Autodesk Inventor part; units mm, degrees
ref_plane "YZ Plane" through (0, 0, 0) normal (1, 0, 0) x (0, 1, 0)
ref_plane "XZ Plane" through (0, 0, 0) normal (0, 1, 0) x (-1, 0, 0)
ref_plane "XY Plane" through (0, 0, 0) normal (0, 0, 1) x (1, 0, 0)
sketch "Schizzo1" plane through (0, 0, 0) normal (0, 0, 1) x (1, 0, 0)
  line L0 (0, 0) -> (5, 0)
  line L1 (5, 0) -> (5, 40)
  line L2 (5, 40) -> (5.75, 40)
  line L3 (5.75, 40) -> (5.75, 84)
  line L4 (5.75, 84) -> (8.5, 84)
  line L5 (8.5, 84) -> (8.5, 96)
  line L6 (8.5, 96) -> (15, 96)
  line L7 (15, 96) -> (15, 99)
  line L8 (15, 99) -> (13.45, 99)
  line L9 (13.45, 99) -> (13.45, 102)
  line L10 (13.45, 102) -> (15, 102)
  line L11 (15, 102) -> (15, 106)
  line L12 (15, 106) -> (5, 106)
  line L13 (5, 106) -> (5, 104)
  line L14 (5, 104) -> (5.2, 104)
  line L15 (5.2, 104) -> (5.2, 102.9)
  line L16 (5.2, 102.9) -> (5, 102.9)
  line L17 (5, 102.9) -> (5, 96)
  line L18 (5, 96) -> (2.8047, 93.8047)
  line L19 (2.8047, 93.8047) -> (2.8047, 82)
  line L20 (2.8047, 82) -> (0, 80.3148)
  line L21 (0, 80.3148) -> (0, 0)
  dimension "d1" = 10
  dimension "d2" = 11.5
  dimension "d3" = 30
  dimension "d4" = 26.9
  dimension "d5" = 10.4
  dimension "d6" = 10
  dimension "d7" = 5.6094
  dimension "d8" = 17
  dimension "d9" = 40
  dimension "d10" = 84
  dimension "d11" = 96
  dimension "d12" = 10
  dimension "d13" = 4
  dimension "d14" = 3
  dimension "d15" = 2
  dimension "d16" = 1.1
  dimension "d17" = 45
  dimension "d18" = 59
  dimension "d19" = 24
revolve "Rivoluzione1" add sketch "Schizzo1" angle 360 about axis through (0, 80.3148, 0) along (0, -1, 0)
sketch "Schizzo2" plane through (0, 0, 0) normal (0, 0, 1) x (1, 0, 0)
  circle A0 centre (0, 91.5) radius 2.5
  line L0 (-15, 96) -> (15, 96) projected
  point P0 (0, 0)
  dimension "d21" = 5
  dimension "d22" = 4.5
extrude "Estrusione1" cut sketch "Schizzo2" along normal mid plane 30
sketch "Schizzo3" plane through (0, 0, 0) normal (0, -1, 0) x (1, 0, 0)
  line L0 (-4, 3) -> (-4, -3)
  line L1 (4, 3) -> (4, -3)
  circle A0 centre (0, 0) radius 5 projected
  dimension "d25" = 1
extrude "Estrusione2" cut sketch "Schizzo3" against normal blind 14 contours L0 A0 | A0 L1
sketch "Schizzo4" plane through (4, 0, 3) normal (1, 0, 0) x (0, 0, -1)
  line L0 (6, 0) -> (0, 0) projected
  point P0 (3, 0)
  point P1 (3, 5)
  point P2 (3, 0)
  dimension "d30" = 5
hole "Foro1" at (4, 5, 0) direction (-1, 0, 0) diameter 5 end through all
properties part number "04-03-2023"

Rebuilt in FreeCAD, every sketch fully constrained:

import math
import FreeCAD as App
import Part
import Sketcher
from FreeCAD import Vector
Q = App.Units.Quantity


def add_polygon(sketch, points):
    """Adds a closed chain of lines whose ends are joined by coincident constraints."""
    first, n = sketch.GeometryCount, len(points)
    for a, b in zip(points, points[1:] + points[:1]):
        sketch.addGeometry(Part.LineSegment(App.Vector(*a, 0), App.Vector(*b, 0)), False)
    for i in range(n):
        sketch.addConstraint(Sketcher.Constraint("Coincident", first + i, 2, first + (i + 1) % n, 1))

doc = App.newDocument("Part")
params = doc.addObject("Spreadsheet::Sheet", "Params")
for row, (alias, value) in enumerate([
    ("sketch1_width", "10 mm"),
    ("sketch1_height", "40 mm"),
    ("sketch1_height2", "3 mm"),
    ("sketch1_height3", "4 mm"),
    ("sketch1_height4", "2 mm"),
    ("revolution_angle", "360 deg"),
    ("sketch2_diameter", "5 mm"),
    ("pocket1_length", "30 mm"),
    ("sketch3_radius", "5 mm"),
    ("sketch3_height", "6 mm"),
    ("pocket2_length", "14 mm"),
    ("sketch4_diameter", "5 mm"),
    ("hole_diameter", "5 mm"),
], start=1):
    params.set(f"A{row}", alias)
    params.set(f"B{row}", "=" + value)
    params.setAlias(f"B{row}", alias)

body = doc.addObject("PartDesign::Body", "Body")

sketch1 = body.newObject("Sketcher::SketchObject", "Sketch")
sketch1.AttachmentSupport = (doc.getObject("XY_Plane"), [""])
sketch1.MapMode = "FlatFace"
add_polygon(sketch1, [(0, 80.3148), (0, 0), (5, 0), (5, 40), (5.75, 40), (5.75, 84), (8.5, 84), (8.5, 96), (15, 96), (15, 99), (13.45, 99), (13.45, 102), (15, 102), (15, 106), (5, 106), (5, 104), (5.2, 104), (5.2, 102.9), (5, 102.9), (5, 96), (2.8047, 93.8047), (2.8047, 82)])
sketch1.addConstraint(Sketcher.Constraint("Vertical", 0))
sketch1.addConstraint(Sketcher.Constraint("Horizontal", 1))
sketch1.addConstraint(Sketcher.Constraint("Vertical", 2))
sketch1.addConstraint(Sketcher.Constraint("Horizontal", 3))
sketch1.addConstraint(Sketcher.Constraint("Vertical", 4))
sketch1.addConstraint(Sketcher.Constraint("Horizontal", 5))
sketch1.addConstraint(Sketcher.Constraint("Vertical", 6))
sketch1.addConstraint(Sketcher.Constraint("Horizontal", 7))
sketch1.addConstraint(Sketcher.Constraint("Vertical", 8))
sketch1.addConstraint(Sketcher.Constraint("Horizontal", 9))
sketch1.addConstraint(Sketcher.Constraint("Vertical", 10))
sketch1.addConstraint(Sketcher.Constraint("Horizontal", 11))
sketch1.addConstraint(Sketcher.Constraint("Vertical", 12))
sketch1.addConstraint(Sketcher.Constraint("Horizontal", 13))
sketch1.addConstraint(Sketcher.Constraint("Vertical", 14))
sketch1.addConstraint(Sketcher.Constraint("Horizontal", 15))
sketch1.addConstraint(Sketcher.Constraint("Vertical", 16))
sketch1.addConstraint(Sketcher.Constraint("Horizontal", 17))
sketch1.addConstraint(Sketcher.Constraint("Vertical", 18))
sketch1.addConstraint(Sketcher.Constraint("Vertical", 20))
sketch1.addConstraint(Sketcher.Constraint("Coincident", 0, 2, -1, 1))
sketch1.addConstraint(Sketcher.Constraint("Horizontal", 7, 2, 18, 2))
sketch1.addConstraint(Sketcher.Constraint("Vertical", 8, 2, 11, 2))
sketch1.addConstraint(Sketcher.Constraint("Vertical", 2, 2, 13, 2))
sketch1.addConstraint(Sketcher.Constraint("Vertical", 14, 2, 17, 2))
sketch1.addConstraint(Sketcher.Constraint("Equal", 8, 10))
sketch1.addConstraint(Sketcher.Constraint("DistanceX", 13, 2, 13, 1, 10.0))
sketch1.addConstraint(Sketcher.Constraint("DistanceY", 2, 1, 2, 2, 40.0))
sketch1.addConstraint(Sketcher.Constraint("DistanceY", 8, 1, 8, 2, 3.0))
sketch1.addConstraint(Sketcher.Constraint("DistanceY", 12, 1, 12, 2, 4.0))
sketch1.addConstraint(Sketcher.Constraint("DistanceY", 14, 2, 14, 1, 2.0))
sketch1.addConstraint(Sketcher.Constraint("DistanceY", 16, 2, 16, 1, 1.1))
sketch1.addConstraint(Sketcher.Constraint("DistanceY", -1, 1, 4, 2, 84.0))
sketch1.addConstraint(Sketcher.Constraint("DistanceY", -1, 1, 6, 2, 96.0))
sketch1.addConstraint(Sketcher.Constraint("DistanceY", 20, 2, 4, 2, 2.0))
sketch1.addConstraint(Sketcher.Constraint("DistanceX", 1, 1, 1, 2, 5.0))
sketch1.addConstraint(Sketcher.Constraint("Angle", 19, Q("-135 deg")))
sketch1.addConstraint(Sketcher.Constraint("Angle", 21, Q("-149.0005 deg")))
sketch1.addConstraint(Sketcher.Constraint("DistanceX", 7, 1, 7, 2, 6.5))
sketch1.addConstraint(Sketcher.Constraint("DistanceX", 15, 1, 15, 2, 0.2))
sketch1.addConstraint(Sketcher.Constraint("DistanceX", 3, 1, 3, 2, 0.75))
sketch1.addConstraint(Sketcher.Constraint("DistanceX", 9, 2, 9, 1, 1.55))
sketch1.addConstraint(Sketcher.Constraint("DistanceY", 21, 2, 19, 2, 13.49))
sketch1.setExpression("Constraints[48]", "Params.sketch1_width")
sketch1.setExpression("Constraints[49]", "Params.sketch1_height")
sketch1.setExpression("Constraints[50]", "Params.sketch1_height2")
sketch1.setExpression("Constraints[51]", "Params.sketch1_height3")
sketch1.setExpression("Constraints[52]", "Params.sketch1_height4")
revolution = body.newObject("PartDesign::Revolution", "Revolution")
revolution.Profile = sketch1
revolution.ReferenceAxis = (sketch1, ["V_Axis"])
revolution.setExpression("Angle", "Params.revolution_angle")

sketch2 = body.newObject("Sketcher::SketchObject", "Sketch001")
sketch2.AttachmentSupport = (doc.getObject("XY_Plane"), [""])
sketch2.MapMode = "FlatFace"
sketch2.addGeometry(Part.Circle(Vector(0, 91.5, 0), Vector(0, 0, 1), 2.5), False)
sketch2.addConstraint(Sketcher.Constraint("PointOnObject", 0, 3, -2))
sketch2.addConstraint(Sketcher.Constraint("Diameter", 0, 5.0))
sketch2.addConstraint(Sketcher.Constraint("DistanceY", -1, 1, 0, 3, 91.5))
sketch2.setExpression("Constraints[1]", "Params.sketch2_diameter")
pocket1 = body.newObject("PartDesign::Pocket", "Pocket")
pocket1.Profile = sketch2
pocket1.setExpression("Length", "Params.pocket1_length")
pocket1.Midplane = True

sketch3 = body.newObject("Sketcher::SketchObject", "Sketch002")
sketch3.AttachmentSupport = (doc.getObject("XZ_Plane"), [""])
sketch3.MapMode = "FlatFace"
sketch3.addGeometry(Part.LineSegment(Vector(-4, -3, 0), Vector(-4, 3, 0)), False)
sketch3.addGeometry(Part.ArcOfCircle(Part.Circle(Vector(0, 0, 0), Vector(0, 0, 1), 5), math.radians(143.130102), math.radians(216.869898)), False)
sketch3.addGeometry(Part.ArcOfCircle(Part.Circle(Vector(0, 0, 0), Vector(0, 0, 1), 5), math.radians(-36.869898), math.radians(36.869898)), False)
sketch3.addGeometry(Part.LineSegment(Vector(4, 3, 0), Vector(4, -3, 0)), False)
sketch3.addConstraint(Sketcher.Constraint("Coincident", 0, 1, 1, 2))
sketch3.addConstraint(Sketcher.Constraint("Coincident", 1, 1, 0, 2))
sketch3.addConstraint(Sketcher.Constraint("Coincident", 2, 1, 3, 2))
sketch3.addConstraint(Sketcher.Constraint("Coincident", 3, 1, 2, 2))
sketch3.addConstraint(Sketcher.Constraint("Vertical", 0))
sketch3.addConstraint(Sketcher.Constraint("Vertical", 3))
sketch3.addConstraint(Sketcher.Constraint("Coincident", 1, 3, -1, 1))
sketch3.addConstraint(Sketcher.Constraint("Coincident", 2, 3, -1, 1))
sketch3.addConstraint(Sketcher.Constraint("Equal", 1, 2))
sketch3.addConstraint(Sketcher.Constraint("Horizontal", 0, 1, 2, 1))
sketch3.addConstraint(Sketcher.Constraint("Radius", 1, 5.0))
sketch3.addConstraint(Sketcher.Constraint("DistanceY", 0, 1, 0, 2, 6.0))
sketch3.setExpression("Constraints[10]", "Params.sketch3_radius")
sketch3.setExpression("Constraints[11]", "Params.sketch3_height")
pocket2 = body.newObject("PartDesign::Pocket", "Pocket001")
pocket2.Profile = sketch3
pocket2.setExpression("Length", "Params.pocket2_length")

sketch4 = body.newObject("Sketcher::SketchObject", "Sketch003")
sketch4.AttachmentSupport = (doc.getObject("YZ_Plane"), [""])
sketch4.MapMode = "FlatFace"
sketch4.AttachmentOffset = App.Placement(Vector(0, 0, 4), App.Rotation())
sketch4.addGeometry(Part.Circle(Vector(5, 0, 0), Vector(0, 0, 1), 2.5), False)
sketch4.addConstraint(Sketcher.Constraint("PointOnObject", 0, 3, -1))
sketch4.addConstraint(Sketcher.Constraint("Diameter", 0, 5.0))
sketch4.addConstraint(Sketcher.Constraint("DistanceX", -1, 1, 0, 3, 5.0))
sketch4.setExpression("Constraints[1]", "Params.sketch4_diameter")
doc.recompute()
hole = body.newObject("PartDesign::Hole", "Hole")
hole.Profile = sketch4
hole.ThreadType = "None"
hole.setExpression("Diameter", "Params.hole_diameter")
hole.DepthType = "ThroughAll"

doc.recompute()
